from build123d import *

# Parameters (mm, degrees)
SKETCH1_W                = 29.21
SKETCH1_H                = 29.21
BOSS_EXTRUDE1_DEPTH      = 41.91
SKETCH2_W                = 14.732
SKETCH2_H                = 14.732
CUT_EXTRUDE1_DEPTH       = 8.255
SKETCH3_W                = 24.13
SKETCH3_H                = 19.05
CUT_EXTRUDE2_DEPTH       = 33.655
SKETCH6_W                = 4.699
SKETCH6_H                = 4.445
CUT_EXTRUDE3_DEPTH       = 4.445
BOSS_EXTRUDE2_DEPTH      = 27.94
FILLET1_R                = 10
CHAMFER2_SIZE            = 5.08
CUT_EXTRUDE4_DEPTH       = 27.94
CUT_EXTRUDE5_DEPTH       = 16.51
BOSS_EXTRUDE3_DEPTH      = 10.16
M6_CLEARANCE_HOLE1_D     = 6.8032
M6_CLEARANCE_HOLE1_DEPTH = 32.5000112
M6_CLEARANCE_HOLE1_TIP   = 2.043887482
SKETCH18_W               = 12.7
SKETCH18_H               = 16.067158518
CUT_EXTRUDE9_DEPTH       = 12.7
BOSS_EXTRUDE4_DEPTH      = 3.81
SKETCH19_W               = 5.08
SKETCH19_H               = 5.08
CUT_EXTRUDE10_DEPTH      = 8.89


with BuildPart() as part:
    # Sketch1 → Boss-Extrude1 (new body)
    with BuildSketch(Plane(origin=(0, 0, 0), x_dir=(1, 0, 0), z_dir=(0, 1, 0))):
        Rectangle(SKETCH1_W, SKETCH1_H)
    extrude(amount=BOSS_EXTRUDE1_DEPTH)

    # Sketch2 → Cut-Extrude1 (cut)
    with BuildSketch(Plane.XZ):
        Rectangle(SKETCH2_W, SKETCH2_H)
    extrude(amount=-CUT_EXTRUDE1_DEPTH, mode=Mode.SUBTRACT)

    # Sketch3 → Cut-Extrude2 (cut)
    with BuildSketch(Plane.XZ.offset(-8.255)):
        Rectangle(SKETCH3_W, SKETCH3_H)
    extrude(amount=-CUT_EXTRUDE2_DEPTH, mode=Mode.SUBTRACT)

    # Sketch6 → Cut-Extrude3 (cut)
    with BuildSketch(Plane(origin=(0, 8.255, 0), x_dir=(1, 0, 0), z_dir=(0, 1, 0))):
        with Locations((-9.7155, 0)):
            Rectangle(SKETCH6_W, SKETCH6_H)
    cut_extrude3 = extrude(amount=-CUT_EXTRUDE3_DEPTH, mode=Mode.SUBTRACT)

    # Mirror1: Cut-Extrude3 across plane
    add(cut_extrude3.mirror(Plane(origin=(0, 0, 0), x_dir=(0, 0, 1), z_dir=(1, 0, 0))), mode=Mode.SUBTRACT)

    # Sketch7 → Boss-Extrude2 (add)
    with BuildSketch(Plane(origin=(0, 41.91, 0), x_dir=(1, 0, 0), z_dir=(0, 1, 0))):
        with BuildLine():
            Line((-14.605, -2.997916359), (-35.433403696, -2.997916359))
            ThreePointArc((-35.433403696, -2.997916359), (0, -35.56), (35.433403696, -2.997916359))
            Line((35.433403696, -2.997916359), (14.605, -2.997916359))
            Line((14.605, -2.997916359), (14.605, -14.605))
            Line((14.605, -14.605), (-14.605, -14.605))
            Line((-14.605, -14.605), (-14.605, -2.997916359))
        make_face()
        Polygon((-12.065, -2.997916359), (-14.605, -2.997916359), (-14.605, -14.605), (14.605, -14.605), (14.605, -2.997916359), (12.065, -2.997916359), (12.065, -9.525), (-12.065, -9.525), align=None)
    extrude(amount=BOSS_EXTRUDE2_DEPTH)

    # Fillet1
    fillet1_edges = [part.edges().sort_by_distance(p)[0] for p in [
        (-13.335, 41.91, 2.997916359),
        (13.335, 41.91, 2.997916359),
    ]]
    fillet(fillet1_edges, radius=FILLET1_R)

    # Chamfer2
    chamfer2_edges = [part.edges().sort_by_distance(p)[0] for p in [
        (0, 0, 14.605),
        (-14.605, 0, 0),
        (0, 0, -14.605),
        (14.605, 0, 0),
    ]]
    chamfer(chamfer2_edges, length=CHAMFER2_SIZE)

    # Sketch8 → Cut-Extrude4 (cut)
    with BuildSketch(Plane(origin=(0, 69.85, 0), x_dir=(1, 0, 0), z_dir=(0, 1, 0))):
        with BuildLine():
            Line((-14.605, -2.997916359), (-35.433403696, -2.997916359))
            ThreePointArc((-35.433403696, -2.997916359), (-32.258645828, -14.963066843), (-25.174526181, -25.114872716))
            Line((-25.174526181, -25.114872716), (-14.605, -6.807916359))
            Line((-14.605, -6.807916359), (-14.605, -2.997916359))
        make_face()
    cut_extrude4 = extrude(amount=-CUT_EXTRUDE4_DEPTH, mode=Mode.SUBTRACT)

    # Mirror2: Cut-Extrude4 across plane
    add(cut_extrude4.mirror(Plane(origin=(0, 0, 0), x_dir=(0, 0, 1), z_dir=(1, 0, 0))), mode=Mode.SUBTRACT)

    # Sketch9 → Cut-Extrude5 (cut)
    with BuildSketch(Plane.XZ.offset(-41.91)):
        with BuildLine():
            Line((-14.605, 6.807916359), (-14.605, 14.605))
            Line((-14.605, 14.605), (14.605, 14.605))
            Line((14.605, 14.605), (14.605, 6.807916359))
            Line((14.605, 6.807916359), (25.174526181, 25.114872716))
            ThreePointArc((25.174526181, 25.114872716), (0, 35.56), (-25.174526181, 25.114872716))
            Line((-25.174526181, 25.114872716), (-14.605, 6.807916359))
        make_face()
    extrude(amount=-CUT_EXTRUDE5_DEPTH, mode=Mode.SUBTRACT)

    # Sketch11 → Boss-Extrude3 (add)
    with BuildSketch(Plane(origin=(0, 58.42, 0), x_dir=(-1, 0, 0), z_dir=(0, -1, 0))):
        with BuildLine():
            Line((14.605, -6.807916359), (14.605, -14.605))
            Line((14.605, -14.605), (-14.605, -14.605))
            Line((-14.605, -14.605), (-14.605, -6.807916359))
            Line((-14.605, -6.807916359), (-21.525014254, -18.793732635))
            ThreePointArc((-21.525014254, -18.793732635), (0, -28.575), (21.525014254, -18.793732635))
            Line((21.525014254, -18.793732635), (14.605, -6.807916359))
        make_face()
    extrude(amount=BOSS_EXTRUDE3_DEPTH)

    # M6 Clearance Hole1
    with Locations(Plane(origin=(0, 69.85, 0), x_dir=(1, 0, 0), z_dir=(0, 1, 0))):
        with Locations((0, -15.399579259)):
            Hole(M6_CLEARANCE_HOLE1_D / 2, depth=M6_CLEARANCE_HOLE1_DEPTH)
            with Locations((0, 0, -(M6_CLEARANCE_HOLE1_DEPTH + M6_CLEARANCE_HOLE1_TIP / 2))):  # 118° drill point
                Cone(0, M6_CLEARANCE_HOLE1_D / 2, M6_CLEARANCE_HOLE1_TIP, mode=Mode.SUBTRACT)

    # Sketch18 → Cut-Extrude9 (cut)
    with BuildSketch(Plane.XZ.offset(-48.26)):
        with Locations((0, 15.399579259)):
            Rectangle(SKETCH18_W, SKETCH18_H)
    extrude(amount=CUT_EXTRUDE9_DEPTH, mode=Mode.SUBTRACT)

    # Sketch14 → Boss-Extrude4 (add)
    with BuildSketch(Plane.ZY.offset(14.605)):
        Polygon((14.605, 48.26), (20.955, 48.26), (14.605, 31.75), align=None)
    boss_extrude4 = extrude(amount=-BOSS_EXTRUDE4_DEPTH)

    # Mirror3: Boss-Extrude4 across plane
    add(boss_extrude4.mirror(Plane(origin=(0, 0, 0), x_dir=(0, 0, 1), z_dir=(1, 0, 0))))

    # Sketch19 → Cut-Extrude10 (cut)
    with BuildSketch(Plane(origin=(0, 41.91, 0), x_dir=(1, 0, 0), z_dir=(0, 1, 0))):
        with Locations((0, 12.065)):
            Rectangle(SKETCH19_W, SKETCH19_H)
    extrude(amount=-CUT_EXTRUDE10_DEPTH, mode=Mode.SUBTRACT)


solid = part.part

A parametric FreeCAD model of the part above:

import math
import FreeCAD as App
import Part
import Sketcher
from FreeCAD import Vector
Q = App.Units.Quantity


def edges_at(feature, points):
    """Names of the edges that pass closest to the given points."""
    edges = feature.Shape.Edges
    near = lambda p: min(range(len(edges)), key=lambda i: edges[i].distToShape(Part.Vertex(*p))[0])
    return sorted({f"Edge{near(p) + 1}" for p in points})

doc = App.newDocument("Part")
body = doc.addObject("PartDesign::Body", "Body")

sketch1 = body.newObject("Sketcher::SketchObject", "Sketch")
sketch1.AttachmentSupport = (doc.getObject("XZ_Plane"), [""])
sketch1.MapMode = "FlatFace"
sketch1.addGeometry([
    Part.LineSegment(Vector(-15, -15, 0), Vector(-15, 15, 0)),
    Part.LineSegment(Vector(-15, 15, 0), Vector(15, 15, 0)),
    Part.LineSegment(Vector(15, 15, 0), Vector(15, -15, 0)),
    Part.LineSegment(Vector(15, -15, 0), Vector(-15, -15, 0)),
], False)
sketch1.addConstraint([
    Sketcher.Constraint("Coincident", 0, 2, 1, 1),
    Sketcher.Constraint("Coincident", 1, 2, 2, 1),
    Sketcher.Constraint("Coincident", 2, 2, 3, 1),
    Sketcher.Constraint("Coincident", 3, 2, 0, 1),
    Sketcher.Constraint("Vertical", 0),
    Sketcher.Constraint("Horizontal", 1),
    Sketcher.Constraint("Vertical", 2),
    Sketcher.Constraint("Horizontal", 3),
    Sketcher.Constraint("Symmetric", 0, 2, 2, 2, -1, 1),
    Sketcher.Constraint("Equal", 3, 0),
    Sketcher.Constraint("DistanceX", 1, 1, 1, 2, Q("1.15 in")),
])
pad1 = body.newObject("PartDesign::Pad", "Pad")
pad1.Profile = sketch1
pad1.Length = Q("1.65 in")
pad1.Reversed = True

sketch2 = body.newObject("Sketcher::SketchObject", "Sketch001")
sketch2.AttachmentSupport = (doc.getObject("XZ_Plane"), [""])
sketch2.MapMode = "FlatFace"
sketch2.addGeometry([
    Part.LineSegment(Vector(-7, 7, 0), Vector(-7, -7, 0)),
    Part.LineSegment(Vector(-7, -7, 0), Vector(7, -7, 0)),
    Part.LineSegment(Vector(7, -7, 0), Vector(7, 7, 0)),
    Part.LineSegment(Vector(7, 7, 0), Vector(-7, 7, 0)),
], False)
sketch2.addConstraint([
    Sketcher.Constraint("Coincident", 0, 2, 1, 1),
    Sketcher.Constraint("Coincident", 1, 2, 2, 1),
    Sketcher.Constraint("Coincident", 2, 2, 3, 1),
    Sketcher.Constraint("Coincident", 3, 2, 0, 1),
    Sketcher.Constraint("Vertical", 0),
    Sketcher.Constraint("Horizontal", 1),
    Sketcher.Constraint("Vertical", 2),
    Sketcher.Constraint("Horizontal", 3),
    Sketcher.Constraint("Symmetric", 0, 2, 2, 2, -1, 1),
    Sketcher.Constraint("Equal", 3, 0),
    Sketcher.Constraint("DistanceX", 1, 1, 1, 2, Q("0.58 in")),
])
pocket1 = body.newObject("PartDesign::Pocket", "Pocket")
pocket1.Profile = sketch2
pocket1.Length = Q("0.325 in")

sketch3 = body.newObject("Sketcher::SketchObject", "Sketch002")
sketch3.AttachmentSupport = (doc.getObject("XZ_Plane"), [""])
sketch3.MapMode = "FlatFace"
sketch3.AttachmentOffset = App.Placement(Vector(0, 0, -0.325 * 25.4), App.Rotation())
sketch3.addGeometry([
    Part.LineSegment(Vector(-12, 10, 0), Vector(-12, -10, 0)),
    Part.LineSegment(Vector(-12, -10, 0), Vector(12, -10, 0)),
    Part.LineSegment(Vector(12, -10, 0), Vector(12, 10, 0)),
    Part.LineSegment(Vector(12, 10, 0), Vector(-12, 10, 0)),
], False)
sketch3.addConstraint([
    Sketcher.Constraint("Coincident", 0, 2, 1, 1),
    Sketcher.Constraint("Coincident", 1, 2, 2, 1),
    Sketcher.Constraint("Coincident", 2, 2, 3, 1),
    Sketcher.Constraint("Coincident", 3, 2, 0, 1),
    Sketcher.Constraint("Vertical", 0),
    Sketcher.Constraint("Horizontal", 1),
    Sketcher.Constraint("Vertical", 2),
    Sketcher.Constraint("Horizontal", 3),
    Sketcher.Constraint("Symmetric", 0, 2, 2, 2, -1, 1),
    Sketcher.Constraint("DistanceX", 1, 1, 1, 2, Q("0.95 in")),
    Sketcher.Constraint("DistanceY", 0, 2, 0, 1, Q("0.75 in")),
])
pocket2 = body.newObject("PartDesign::Pocket", "Pocket001")
pocket2.Profile = sketch3
pocket2.Length = Q("1.325 in")

sketch4 = body.newObject("Sketcher::SketchObject", "Sketch003")
sketch4.AttachmentSupport = (doc.getObject("XZ_Plane"), [""])
sketch4.MapMode = "FlatFace"
sketch4.AttachmentOffset = App.Placement(Vector(0, 0, -0.325 * 25.4), App.Rotation())
sketch4.addGeometry([
    Part.LineSegment(Vector(-12.1, -2.2, 0), Vector(-12.1, 2.2, 0)),
    Part.LineSegment(Vector(-12.1, 2.2, 0), Vector(-7.4, 2.2, 0)),
    Part.LineSegment(Vector(-7.4, 2.2, 0), Vector(-7.4, -2.2, 0)),
    Part.LineSegment(Vector(-7.4, -2.2, 0), Vector(-12.1, -2.2, 0)),
], False)
sketch4.addConstraint([
    Sketcher.Constraint("Coincident", 0, 2, 1, 1),
    Sketcher.Constraint("Coincident", 1, 2, 2, 1),
    Sketcher.Constraint("Coincident", 2, 2, 3, 1),
    Sketcher.Constraint("Coincident", 3, 2, 0, 1),
    Sketcher.Constraint("Vertical", 0),
    Sketcher.Constraint("Horizontal", 1),
    Sketcher.Constraint("Vertical", 2),
    Sketcher.Constraint("Horizontal", 3),
    Sketcher.Constraint("DistanceX", 1, 1, 1, 2, Q("0.185 in")),
    Sketcher.Constraint("DistanceY", 0, 1, 0, 2, Q("0.175 in")),
    Sketcher.Constraint("DistanceX", 1, 2, -1, 1, Q("0.29 in")),
    Sketcher.Constraint("DistanceY", -1, 1, 0, 2, Q("0.0875 in")),
])
pocket3 = body.newObject("PartDesign::Pocket", "Pocket002")
pocket3.Profile = sketch4
pocket3.Length = Q("0.175 in")
pocket3.Reversed = True
doc.recompute()

mirrored = body.newObject("PartDesign::Mirrored", "Mirrored")
mirrored.Originals = [pocket3]
mirrored.MirrorPlane = (doc.getObject("YZ_Plane"), [""])
body.Tip = mirrored

sketch5 = body.newObject("Sketcher::SketchObject", "Sketch004")
sketch5.AttachmentSupport = (doc.getObject("XZ_Plane"), [""])
sketch5.MapMode = "FlatFace"
sketch5.AttachmentOffset = App.Placement(Vector(0, 0, -1.65 * 25.4), App.Rotation())
sketch5.addGeometry([
    Part.ArcOfCircle(Part.Circle(Vector(0, 0, 0), Vector(0, 0, 1), 36), math.radians(5), math.radians(175)),
    Part.LineSegment(Vector(35, 3, 0), Vector(12, 3, 0)),
    Part.LineSegment(Vector(12, 3, 0), Vector(12, 10, 0)),
    Part.LineSegment(Vector(12, 10, 0), Vector(-12, 10, 0)),
    Part.LineSegment(Vector(-12, 10, 0), Vector(-12, 3, 0)),
    Part.LineSegment(Vector(-12, 3, 0), Vector(-35, 3, 0)),
], False)
sketch5.addConstraint([
    Sketcher.Constraint("Coincident", 0, 1, 1, 1),
    Sketcher.Constraint("Coincident", 1, 2, 2, 1),
    Sketcher.Constraint("Coincident", 2, 2, 3, 1),
    Sketcher.Constraint("Coincident", 3, 2, 4, 1),
    Sketcher.Constraint("Coincident", 4, 2, 5, 1),
    Sketcher.Constraint("Coincident", 5, 2, 0, 2),
    Sketcher.Constraint("Horizontal", 1),
    Sketcher.Constraint("Vertical", 2),
    Sketcher.Constraint("Horizontal", 3),
    Sketcher.Constraint("Vertical", 4),
    Sketcher.Constraint("Horizontal", 5),
    Sketcher.Constraint("Coincident", 0, 3, -1, 1),
    Sketcher.Constraint("Symmetric", 1, 2, 4, 2, -2),
    Sketcher.Constraint("Radius", 0, Q("1.4 in")),
    Sketcher.Constraint("DistanceX", 3, 2, 3, 1, Q("0.95 in")),
    Sketcher.Constraint("DistanceY", -1, 1, 2, 2, Q("0.375 in")),
    Sketcher.Constraint("DistanceX", 1, 2, 1, 1, Q("23.368404 mm")),
])
pad2 = body.newObject("PartDesign::Pad", "Pad001")
pad2.Profile = sketch5
pad2.Length = Q("1.1 in")
pad2.Reversed = True
doc.recompute()

fillet = body.newObject("PartDesign::Fillet", "Fillet")
fillet.Base = (pad2, edges_at(pad2, [(-13.335, 41.91, 2.998), (13.335, 41.91, 2.998)]))
fillet.Radius = 10
doc.recompute()

chamfer = body.newObject("PartDesign::Chamfer", "Chamfer")
chamfer.Base = (fillet, edges_at(fillet, [
    (0, 0, 14.605),
    (-14.605, 0, 0),
    (0, 0, -14.605),
    (14.605, 0, 0),
]))
chamfer.Size = Q("0.2 in")

sketch6 = body.newObject("Sketcher::SketchObject", "Sketch005")
sketch6.AttachmentSupport = (doc.getObject("XZ_Plane"), [""])
sketch6.MapMode = "FlatFace"
sketch6.AttachmentOffset = App.Placement(Vector(0, 0, -2.75 * 25.4), App.Rotation())
sketch6.addGeometry([
    Part.LineSegment(Vector(-14.6, 3, 0), Vector(-35.4, 3, 0)),
    Part.ArcOfCircle(Part.Circle(Vector(0, 0, 0), Vector(0, 0, 1), 35.6), math.radians(135), math.radians(175)),
    Part.LineSegment(Vector(-25.2, 25.1, 0), Vector(-14.6, 6.8, 0)),
    Part.LineSegment(Vector(-14.6, 6.8, 0), Vector(-14.6, 3, 0)),
], False)
sketch6.addConstraint([
    Sketcher.Constraint("Coincident", 0, 2, 1, 2),
    Sketcher.Constraint("Coincident", 1, 1, 2, 1),
    Sketcher.Constraint("Coincident", 2, 2, 3, 1),
    Sketcher.Constraint("Coincident", 3, 2, 0, 1),
    Sketcher.Constraint("Horizontal", 0),
    Sketcher.Constraint("Vertical", 3),
    Sketcher.Constraint("Coincident", 1, 3, -1, 1),
    Sketcher.Constraint("Radius", 1, Q("1.4 in")),
    Sketcher.Constraint("Angle", 2, Q("-60 deg")),
    Sketcher.Constraint("DistanceY", 3, 2, 3, 1, Q("0.15 in")),
    Sketcher.Constraint("DistanceX", 2, 2, -1, 1, Q("0.575 in")),
    Sketcher.Constraint("DistanceX", 0, 2, 0, 1, Q("20.828404 mm")),
])
pocket4 = body.newObject("PartDesign::Pocket", "Pocket003")
pocket4.Profile = sketch6
pocket4.Length = Q("1.1 in")
pocket4.Reversed = True
doc.recompute()

mirrored2 = body.newObject("PartDesign::Mirrored", "Mirrored001")
mirrored2.Originals = [pocket4]
mirrored2.MirrorPlane = (doc.getObject("YZ_Plane"), [""])
body.Tip = mirrored2

sketch7 = body.newObject("Sketcher::SketchObject", "Sketch006")
sketch7.AttachmentSupport = (doc.getObject("XZ_Plane"), [""])
sketch7.MapMode = "FlatFace"
sketch7.AttachmentOffset = App.Placement(Vector(0, 0, -1.65 * 25.4), App.Rotation())
sketch7.addGeometry([
    Part.LineSegment(Vector(-15, 7, 0), Vector(-15, 15, 0)),
    Part.LineSegment(Vector(-15, 15, 0), Vector(15, 15, 0)),
    Part.LineSegment(Vector(15, 15, 0), Vector(15, 7, 0)),
    Part.LineSegment(Vector(15, 7, 0), Vector(25, 25, 0)),
    Part.ArcOfCircle(Part.Circle(Vector(0, 0, 0), Vector(0, 0, 1), 36), math.radians(45), math.radians(135)),
    Part.LineSegment(Vector(-25, 25, 0), Vector(-15, 7, 0)),
], False)
sketch7.addConstraint([
    Sketcher.Constraint("Coincident", 0, 2, 1, 1),
    Sketcher.Constraint("Coincident", 1, 2, 2, 1),
    Sketcher.Constraint("Coincident", 2, 2, 3, 1),
    Sketcher.Constraint("Coincident", 3, 2, 4, 1),
    Sketcher.Constraint("Coincident", 4, 2, 5, 1),
    Sketcher.Constraint("Coincident", 5, 2, 0, 1),
    Sketcher.Constraint("Vertical", 0),
    Sketcher.Constraint("Horizontal", 1),
    Sketcher.Constraint("Vertical", 2),
    Sketcher.Constraint("Coincident", 4, 3, -1, 1),
    Sketcher.Constraint("Symmetric", 2, 2, 5, 2, -2),
    Sketcher.Constraint("Horizontal", 3, 2, 4, 2),
    Sketcher.Constraint("Radius", 4, Q("1.4 in")),
    Sketcher.Constraint("Angle", 3, Q("60 deg")),
    Sketcher.Constraint("DistanceX", 1, 1, 1, 2, Q("1.15 in")),
    Sketcher.Constraint("DistanceY", -1, 1, 0, 2, Q("0.575 in")),
    Sketcher.Constraint("DistanceY", 0, 1, 0, 2, Q("7.797084 mm")),
])
pocket5 = body.newObject("PartDesign::Pocket", "Pocket004")
pocket5.Profile = sketch7
pocket5.Length = Q("0.65 in")

sketch8 = body.newObject("Sketcher::SketchObject", "Sketch007")
sketch8.AttachmentSupport = (doc.getObject("XZ_Plane"), [""])
sketch8.MapMode = "FlatFace"
sketch8.AttachmentOffset = App.Placement(Vector(0, 0, -2.3 * 25.4), App.Rotation())
sketch8.addGeometry([
    Part.LineSegment(Vector(-15, 7, 0), Vector(-15, 15, 0)),
    Part.LineSegment(Vector(-15, 15, 0), Vector(15, 15, 0)),
    Part.LineSegment(Vector(15, 15, 0), Vector(15, 7, 0)),
    Part.LineSegment(Vector(15, 7, 0), Vector(22, 19, 0)),
    Part.ArcOfCircle(Part.Circle(Vector(0, 0, 0), Vector(0, 0, 1), 29), math.radians(41), math.radians(139)),
    Part.LineSegment(Vector(-22, 19, 0), Vector(-15, 7, 0)),
], False)
sketch8.addConstraint([
    Sketcher.Constraint("Coincident", 0, 2, 1, 1),
    Sketcher.Constraint("Coincident", 1, 2, 2, 1),
    Sketcher.Constraint("Coincident", 2, 2, 3, 1),
    Sketcher.Constraint("Coincident", 3, 2, 4, 1),
    Sketcher.Constraint("Coincident", 4, 2, 5, 1),
    Sketcher.Constraint("Coincident", 5, 2, 0, 1),
    Sketcher.Constraint("Vertical", 0),
    Sketcher.Constraint("Horizontal", 1),
    Sketcher.Constraint("Vertical", 2),
    Sketcher.Constraint("Coincident", 4, 3, -1, 1),
    Sketcher.Constraint("Symmetric", 2, 2, 5, 2, -2),
    Sketcher.Constraint("Horizontal", 3, 2, 4, 2),
    Sketcher.Constraint("Angle", 3, Q("60 deg")),
    Sketcher.Constraint("Radius", 4, Q("1.125 in")),
    Sketcher.Constraint("DistanceX", 1, 1, 1, 2, Q("1.15 in")),
    Sketcher.Constraint("DistanceY", -1, 1, 0, 2, Q("0.575 in")),
    Sketcher.Constraint("Distance", 3, Q("13.840029 mm")),
])
pad3 = body.newObject("PartDesign::Pad", "Pad002")
pad3.Profile = sketch8
pad3.Length = Q("0.4 in")

sketch9 = body.newObject("Sketcher::SketchObject", "Sketch008")
sketch9.AttachmentSupport = (doc.getObject("XZ_Plane"), [""])
sketch9.MapMode = "FlatFace"
sketch9.AttachmentOffset = App.Placement(Vector(0, 0, -2.75 * 25.4), App.Rotation())
sketch9.addGeometry(Part.Circle(Vector(0, 15.4, 0), Vector(0, 0, 1), 3.4), False)
sketch9.addConstraint([
    Sketcher.Constraint("PointOnObject", 0, 3, -2),
    Sketcher.Constraint("Diameter", 0, Q("6.8032 mm")),
    Sketcher.Constraint("DistanceY", -1, 1, 0, 3, Q("15.399579 mm")),
])
doc.recompute()
hole = body.newObject("PartDesign::Hole", "Hole")
hole.Profile = sketch9
hole.ThreadType = "None"
hole.Diameter = 6.8032
hole.DepthType = "Dimension"
hole.Depth = 32.500011
hole.DrillPoint = "Angled"
hole.DrillPointAngle = 118
hole.Reversed = True

sketch10 = body.newObject("Sketcher::SketchObject", "Sketch009")
sketch10.AttachmentSupport = (doc.getObject("XZ_Plane"), [""])
sketch10.MapMode = "FlatFace"
sketch10.AttachmentOffset = App.Placement(Vector(0, 0, -1.9 * 25.4), App.Rotation())
sketch10.addGeometry([
    Part.LineSegment(Vector(-6, 23, 0), Vector(-6, 7, 0)),
    Part.LineSegment(Vector(-6, 7, 0), Vector(6, 7, 0)),
    Part.LineSegment(Vector(6, 7, 0), Vector(6, 23, 0)),
    Part.LineSegment(Vector(6, 23, 0), Vector(-6, 23, 0)),
], False)
sketch10.addConstraint([
    Sketcher.Constraint("Coincident", 0, 2, 1, 1),
    Sketcher.Constraint("Coincident", 1, 2, 2, 1),
    Sketcher.Constraint("Coincident", 2, 2, 3, 1),
    Sketcher.Constraint("Coincident", 3, 2, 0, 1),
    Sketcher.Constraint("Vertical", 0),
    Sketcher.Constraint("Horizontal", 1),
    Sketcher.Constraint("Vertical", 2),
    Sketcher.Constraint("Horizontal", 3),
    Sketcher.Constraint("DistanceX", 1, 1, 1, 2, Q("0.5 in")),
    Sketcher.Constraint("DistanceX", 0, 2, -1, 1, Q("0.25 in")),
    Sketcher.Constraint("DistanceY", -1, 1, 0, 2, Q("0.29 in")),
    Sketcher.Constraint("DistanceY", 0, 2, 0, 1, Q("16.067159 mm")),
])
pocket6 = body.newObject("PartDesign::Pocket", "Pocket005")
pocket6.Profile = sketch10
pocket6.Length = Q("0.5 in")
pocket6.Reversed = True

sketch11 = body.newObject("Sketcher::SketchObject", "Sketch010")
sketch11.AttachmentSupport = (doc.getObject("YZ_Plane"), [""])
sketch11.MapMode = "FlatFace"
sketch11.AttachmentOffset = App.Placement(Vector(0, 0, -0.575 * 25.4), App.Rotation())
sketch11.addGeometry([
    Part.LineSegment(Vector(48, 21, 0), Vector(48, 15, 0)),
    Part.LineSegment(Vector(48, 15, 0), Vector(32, 15, 0)),
    Part.LineSegment(Vector(32, 15, 0), Vector(48, 21, 0)),
], False)
sketch11.addConstraint([
    Sketcher.Constraint("Coincident", 0, 2, 1, 1),
    Sketcher.Constraint("Coincident", 1, 2, 2, 1),
    Sketcher.Constraint("Coincident", 2, 2, 0, 1),
    Sketcher.Constraint("Vertical", 0),
    Sketcher.Constraint("Horizontal", 1),
    Sketcher.Constraint("DistanceX", 1, 2, 1, 1, Q("0.65 in")),
    Sketcher.Constraint("DistanceY", 0, 2, 0, 1, Q("0.25 in")),
    Sketcher.Constraint("DistanceX", -1, 1, 0, 2, Q("1.9 in")),
    Sketcher.Constraint("DistanceY", -1, 1, 0, 2, Q("0.575 in")),
])
pad4 = body.newObject("PartDesign::Pad", "Pad003")
pad4.Profile = sketch11
pad4.Length = Q("0.15 in")
doc.recompute()

mirrored3 = body.newObject("PartDesign::Mirrored", "Mirrored002")
mirrored3.Originals = [pad4]
mirrored3.MirrorPlane = (doc.getObject("YZ_Plane"), [""])
body.Tip = mirrored3

sketch12 = body.newObject("Sketcher::SketchObject", "Sketch011")
sketch12.AttachmentSupport = (doc.getObject("XZ_Plane"), [""])
sketch12.MapMode = "FlatFace"
sketch12.AttachmentOffset = App.Placement(Vector(0, 0, -1.65 * 25.4), App.Rotation())
sketch12.addGeometry([
    Part.LineSegment(Vector(-3, -15, 0), Vector(-3, -10, 0)),
    Part.LineSegment(Vector(-3, -10, 0), Vector(3, -10, 0)),
    Part.LineSegment(Vector(3, -10, 0), Vector(3, -15, 0)),
    Part.LineSegment(Vector(3, -15, 0), Vector(-3, -15, 0)),
], False)
sketch12.addConstraint([
    Sketcher.Constraint("Coincident", 0, 2, 1, 1),
    Sketcher.Constraint("Coincident", 1, 2, 2, 1),
    Sketcher.Constraint("Coincident", 2, 2, 3, 1),
    Sketcher.Constraint("Coincident", 3, 2, 0, 1),
    Sketcher.Constraint("Vertical", 0),
    Sketcher.Constraint("Horizontal", 1),
    Sketcher.Constraint("Vertical", 2),
    Sketcher.Constraint("Horizontal", 3),
    Sketcher.Constraint("Equal", 3, 0),
    Sketcher.Constraint("DistanceX", 1, 1, 1, 2, Q("0.2 in")),
    Sketcher.Constraint("DistanceX", 0, 2, -1, 1, Q("0.1 in")),
    Sketcher.Constraint("DistanceY", 0, 2, -1, 1, Q("0.375 in")),
])
pocket7 = body.newObject("PartDesign::Pocket", "Pocket006")
pocket7.Profile = sketch12
pocket7.Length = Q("0.35 in")
pocket7.Reversed = True

doc.recompute()
